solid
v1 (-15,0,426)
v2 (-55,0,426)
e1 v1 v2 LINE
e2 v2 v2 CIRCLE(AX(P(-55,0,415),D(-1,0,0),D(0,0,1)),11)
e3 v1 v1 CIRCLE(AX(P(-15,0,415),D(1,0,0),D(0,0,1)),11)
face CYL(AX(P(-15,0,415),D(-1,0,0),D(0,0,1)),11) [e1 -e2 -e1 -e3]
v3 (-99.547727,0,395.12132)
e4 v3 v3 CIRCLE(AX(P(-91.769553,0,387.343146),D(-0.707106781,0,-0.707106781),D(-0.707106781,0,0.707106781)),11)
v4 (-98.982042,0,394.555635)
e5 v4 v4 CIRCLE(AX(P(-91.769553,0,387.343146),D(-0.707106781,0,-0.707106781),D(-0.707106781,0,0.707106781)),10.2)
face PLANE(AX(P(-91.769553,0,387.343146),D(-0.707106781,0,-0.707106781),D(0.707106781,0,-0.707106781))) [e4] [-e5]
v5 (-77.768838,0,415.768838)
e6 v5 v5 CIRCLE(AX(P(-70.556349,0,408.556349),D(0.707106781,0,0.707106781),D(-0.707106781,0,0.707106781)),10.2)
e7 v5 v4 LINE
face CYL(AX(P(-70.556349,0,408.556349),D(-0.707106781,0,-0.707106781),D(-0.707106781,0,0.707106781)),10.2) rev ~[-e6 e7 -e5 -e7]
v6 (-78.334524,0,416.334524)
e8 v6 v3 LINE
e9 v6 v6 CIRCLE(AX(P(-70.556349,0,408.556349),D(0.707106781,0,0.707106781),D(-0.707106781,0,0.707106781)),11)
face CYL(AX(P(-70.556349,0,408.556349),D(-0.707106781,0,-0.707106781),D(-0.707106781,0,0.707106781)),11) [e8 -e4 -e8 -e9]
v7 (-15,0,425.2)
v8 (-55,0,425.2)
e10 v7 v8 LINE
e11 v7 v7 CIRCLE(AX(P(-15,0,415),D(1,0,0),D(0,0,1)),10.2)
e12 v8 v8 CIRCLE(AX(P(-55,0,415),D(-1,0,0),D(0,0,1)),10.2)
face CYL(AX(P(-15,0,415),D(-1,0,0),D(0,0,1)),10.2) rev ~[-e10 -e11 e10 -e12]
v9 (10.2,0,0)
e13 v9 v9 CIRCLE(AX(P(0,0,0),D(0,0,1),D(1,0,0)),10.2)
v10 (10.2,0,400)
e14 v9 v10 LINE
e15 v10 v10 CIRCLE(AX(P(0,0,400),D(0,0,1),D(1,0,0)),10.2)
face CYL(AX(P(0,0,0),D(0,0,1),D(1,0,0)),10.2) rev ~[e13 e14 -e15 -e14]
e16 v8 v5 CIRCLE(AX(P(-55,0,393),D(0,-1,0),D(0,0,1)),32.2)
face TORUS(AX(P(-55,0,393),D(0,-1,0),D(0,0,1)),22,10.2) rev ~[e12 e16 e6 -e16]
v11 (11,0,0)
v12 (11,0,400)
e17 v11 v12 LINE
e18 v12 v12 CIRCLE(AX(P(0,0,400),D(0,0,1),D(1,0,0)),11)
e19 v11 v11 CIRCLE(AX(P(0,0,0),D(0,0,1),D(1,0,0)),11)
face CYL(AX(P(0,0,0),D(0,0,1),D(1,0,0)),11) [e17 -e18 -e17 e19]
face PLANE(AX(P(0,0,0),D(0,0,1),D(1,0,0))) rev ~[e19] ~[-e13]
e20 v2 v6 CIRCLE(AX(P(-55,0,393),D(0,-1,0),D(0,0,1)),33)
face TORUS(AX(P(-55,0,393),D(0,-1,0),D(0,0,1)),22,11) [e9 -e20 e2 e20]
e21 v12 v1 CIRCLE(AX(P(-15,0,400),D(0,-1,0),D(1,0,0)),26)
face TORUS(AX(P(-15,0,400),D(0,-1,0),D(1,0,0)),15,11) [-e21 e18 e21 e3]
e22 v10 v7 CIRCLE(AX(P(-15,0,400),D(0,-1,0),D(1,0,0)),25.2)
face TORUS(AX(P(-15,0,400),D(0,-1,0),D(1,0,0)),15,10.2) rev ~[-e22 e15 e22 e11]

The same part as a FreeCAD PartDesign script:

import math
import FreeCAD as App
import Part
import Sketcher
Q = App.Units.Quantity


def faces_at(feature, points):
    """Names of the faces that lie closest to the given points."""
    faces = feature.Shape.Faces
    near = lambda p: min(range(len(faces)), key=lambda i: faces[i].distToShape(Part.Vertex(*p))[0])
    return sorted({f"Face{near(p) + 1}" for p in points})

doc = App.newDocument("Part")
body = doc.addObject("PartDesign::Body", "Body")

# Sketch on XY plane
sketch1 = body.newObject("Sketcher::SketchObject", "Sketch")
sketch1.AttachmentSupport = (doc.getObject("XY_Plane"), [""])
sketch1.MapMode = "FlatFace"
sketch1.addGeometry(Part.Circle(App.Vector(0, 0, 0), App.Vector(0, 0, 1), 11), False)
sketch1.addConstraint(Sketcher.Constraint("Coincident", 0, 3, -1, 1))
sketch1.addConstraint(Sketcher.Constraint("Diameter", 0, Q("22 mm")))

# Sketch on XZ plane
sketch2 = body.newObject("Sketcher::SketchObject", "Sketch001")
sketch2.AttachmentSupport = (doc.getObject("XZ_Plane"), [""])
sketch2.MapMode = "FlatFace"
sketch2.addGeometry(Part.LineSegment(App.Vector(0, 0, 0), App.Vector(0, 400, 0)), False)
sketch2.addGeometry(Part.ArcOfCircle(Part.Circle(App.Vector(-15, 400, 0), App.Vector(0, 0, 1), 15), math.radians(0), math.radians(90)), False)
sketch2.addGeometry(Part.LineSegment(App.Vector(-15, 415, 0), App.Vector(-55, 415, 0)), False)
sketch2.addGeometry(Part.ArcOfCircle(Part.Circle(App.Vector(-55, 393, 0), App.Vector(0, 0, 1), 22), math.radians(90), math.radians(135)), False)
sketch2.addGeometry(Part.LineSegment(App.Vector(-70.556349, 408.556349, 0), App.Vector(-91.769553, 387.343146, 0)), False)
sketch2.addConstraint(Sketcher.Constraint("Tangent", 0, 2, 1, 1))
sketch2.addConstraint(Sketcher.Constraint("Tangent", 1, 2, 2, 1))
sketch2.addConstraint(Sketcher.Constraint("Tangent", 2, 2, 3, 1))
sketch2.addConstraint(Sketcher.Constraint("Tangent", 3, 2, 4, 1))
sketch2.addConstraint(Sketcher.Constraint("Vertical", 0))
sketch2.addConstraint(Sketcher.Constraint("Horizontal", 2))
sketch2.addConstraint(Sketcher.Constraint("Coincident", 0, 1, -1, 1))
sketch2.addConstraint(Sketcher.Constraint("Radius", 1, Q("15 mm")))
sketch2.addConstraint(Sketcher.Constraint("Radius", 3, Q("22 mm")))
sketch2.addConstraint(Sketcher.Constraint("DistanceX", 2, 2, 2, 1, Q("40 mm")))
sketch2.addConstraint(Sketcher.Constraint("DistanceY", 0, 1, 0, 2, Q("400 mm")))
sketch2.addConstraint(Sketcher.Constraint("Angle", 4, Q("-135 deg")))
sketch2.addConstraint(Sketcher.Constraint("Distance", 4, Q("30 mm")))
doc.recompute()

additivepipe = body.newObject("PartDesign::AdditivePipe", "AdditivePipe")
additivepipe.Profile = sketch1
additivepipe.Spine = (sketch2, ["Edge1", "Edge2", "Edge3", "Edge4", "Edge5"])
doc.recompute()

thickness = body.newObject("PartDesign::Thickness", "Thickness")
thickness.Base = (additivepipe, faces_at(additivepipe, [(-91.77, 0, 387.343), (0, 0, 0)]))
thickness.Value = 0.8
thickness.Reversed = True
thickness.Join = "Arc"

doc.recompute()
